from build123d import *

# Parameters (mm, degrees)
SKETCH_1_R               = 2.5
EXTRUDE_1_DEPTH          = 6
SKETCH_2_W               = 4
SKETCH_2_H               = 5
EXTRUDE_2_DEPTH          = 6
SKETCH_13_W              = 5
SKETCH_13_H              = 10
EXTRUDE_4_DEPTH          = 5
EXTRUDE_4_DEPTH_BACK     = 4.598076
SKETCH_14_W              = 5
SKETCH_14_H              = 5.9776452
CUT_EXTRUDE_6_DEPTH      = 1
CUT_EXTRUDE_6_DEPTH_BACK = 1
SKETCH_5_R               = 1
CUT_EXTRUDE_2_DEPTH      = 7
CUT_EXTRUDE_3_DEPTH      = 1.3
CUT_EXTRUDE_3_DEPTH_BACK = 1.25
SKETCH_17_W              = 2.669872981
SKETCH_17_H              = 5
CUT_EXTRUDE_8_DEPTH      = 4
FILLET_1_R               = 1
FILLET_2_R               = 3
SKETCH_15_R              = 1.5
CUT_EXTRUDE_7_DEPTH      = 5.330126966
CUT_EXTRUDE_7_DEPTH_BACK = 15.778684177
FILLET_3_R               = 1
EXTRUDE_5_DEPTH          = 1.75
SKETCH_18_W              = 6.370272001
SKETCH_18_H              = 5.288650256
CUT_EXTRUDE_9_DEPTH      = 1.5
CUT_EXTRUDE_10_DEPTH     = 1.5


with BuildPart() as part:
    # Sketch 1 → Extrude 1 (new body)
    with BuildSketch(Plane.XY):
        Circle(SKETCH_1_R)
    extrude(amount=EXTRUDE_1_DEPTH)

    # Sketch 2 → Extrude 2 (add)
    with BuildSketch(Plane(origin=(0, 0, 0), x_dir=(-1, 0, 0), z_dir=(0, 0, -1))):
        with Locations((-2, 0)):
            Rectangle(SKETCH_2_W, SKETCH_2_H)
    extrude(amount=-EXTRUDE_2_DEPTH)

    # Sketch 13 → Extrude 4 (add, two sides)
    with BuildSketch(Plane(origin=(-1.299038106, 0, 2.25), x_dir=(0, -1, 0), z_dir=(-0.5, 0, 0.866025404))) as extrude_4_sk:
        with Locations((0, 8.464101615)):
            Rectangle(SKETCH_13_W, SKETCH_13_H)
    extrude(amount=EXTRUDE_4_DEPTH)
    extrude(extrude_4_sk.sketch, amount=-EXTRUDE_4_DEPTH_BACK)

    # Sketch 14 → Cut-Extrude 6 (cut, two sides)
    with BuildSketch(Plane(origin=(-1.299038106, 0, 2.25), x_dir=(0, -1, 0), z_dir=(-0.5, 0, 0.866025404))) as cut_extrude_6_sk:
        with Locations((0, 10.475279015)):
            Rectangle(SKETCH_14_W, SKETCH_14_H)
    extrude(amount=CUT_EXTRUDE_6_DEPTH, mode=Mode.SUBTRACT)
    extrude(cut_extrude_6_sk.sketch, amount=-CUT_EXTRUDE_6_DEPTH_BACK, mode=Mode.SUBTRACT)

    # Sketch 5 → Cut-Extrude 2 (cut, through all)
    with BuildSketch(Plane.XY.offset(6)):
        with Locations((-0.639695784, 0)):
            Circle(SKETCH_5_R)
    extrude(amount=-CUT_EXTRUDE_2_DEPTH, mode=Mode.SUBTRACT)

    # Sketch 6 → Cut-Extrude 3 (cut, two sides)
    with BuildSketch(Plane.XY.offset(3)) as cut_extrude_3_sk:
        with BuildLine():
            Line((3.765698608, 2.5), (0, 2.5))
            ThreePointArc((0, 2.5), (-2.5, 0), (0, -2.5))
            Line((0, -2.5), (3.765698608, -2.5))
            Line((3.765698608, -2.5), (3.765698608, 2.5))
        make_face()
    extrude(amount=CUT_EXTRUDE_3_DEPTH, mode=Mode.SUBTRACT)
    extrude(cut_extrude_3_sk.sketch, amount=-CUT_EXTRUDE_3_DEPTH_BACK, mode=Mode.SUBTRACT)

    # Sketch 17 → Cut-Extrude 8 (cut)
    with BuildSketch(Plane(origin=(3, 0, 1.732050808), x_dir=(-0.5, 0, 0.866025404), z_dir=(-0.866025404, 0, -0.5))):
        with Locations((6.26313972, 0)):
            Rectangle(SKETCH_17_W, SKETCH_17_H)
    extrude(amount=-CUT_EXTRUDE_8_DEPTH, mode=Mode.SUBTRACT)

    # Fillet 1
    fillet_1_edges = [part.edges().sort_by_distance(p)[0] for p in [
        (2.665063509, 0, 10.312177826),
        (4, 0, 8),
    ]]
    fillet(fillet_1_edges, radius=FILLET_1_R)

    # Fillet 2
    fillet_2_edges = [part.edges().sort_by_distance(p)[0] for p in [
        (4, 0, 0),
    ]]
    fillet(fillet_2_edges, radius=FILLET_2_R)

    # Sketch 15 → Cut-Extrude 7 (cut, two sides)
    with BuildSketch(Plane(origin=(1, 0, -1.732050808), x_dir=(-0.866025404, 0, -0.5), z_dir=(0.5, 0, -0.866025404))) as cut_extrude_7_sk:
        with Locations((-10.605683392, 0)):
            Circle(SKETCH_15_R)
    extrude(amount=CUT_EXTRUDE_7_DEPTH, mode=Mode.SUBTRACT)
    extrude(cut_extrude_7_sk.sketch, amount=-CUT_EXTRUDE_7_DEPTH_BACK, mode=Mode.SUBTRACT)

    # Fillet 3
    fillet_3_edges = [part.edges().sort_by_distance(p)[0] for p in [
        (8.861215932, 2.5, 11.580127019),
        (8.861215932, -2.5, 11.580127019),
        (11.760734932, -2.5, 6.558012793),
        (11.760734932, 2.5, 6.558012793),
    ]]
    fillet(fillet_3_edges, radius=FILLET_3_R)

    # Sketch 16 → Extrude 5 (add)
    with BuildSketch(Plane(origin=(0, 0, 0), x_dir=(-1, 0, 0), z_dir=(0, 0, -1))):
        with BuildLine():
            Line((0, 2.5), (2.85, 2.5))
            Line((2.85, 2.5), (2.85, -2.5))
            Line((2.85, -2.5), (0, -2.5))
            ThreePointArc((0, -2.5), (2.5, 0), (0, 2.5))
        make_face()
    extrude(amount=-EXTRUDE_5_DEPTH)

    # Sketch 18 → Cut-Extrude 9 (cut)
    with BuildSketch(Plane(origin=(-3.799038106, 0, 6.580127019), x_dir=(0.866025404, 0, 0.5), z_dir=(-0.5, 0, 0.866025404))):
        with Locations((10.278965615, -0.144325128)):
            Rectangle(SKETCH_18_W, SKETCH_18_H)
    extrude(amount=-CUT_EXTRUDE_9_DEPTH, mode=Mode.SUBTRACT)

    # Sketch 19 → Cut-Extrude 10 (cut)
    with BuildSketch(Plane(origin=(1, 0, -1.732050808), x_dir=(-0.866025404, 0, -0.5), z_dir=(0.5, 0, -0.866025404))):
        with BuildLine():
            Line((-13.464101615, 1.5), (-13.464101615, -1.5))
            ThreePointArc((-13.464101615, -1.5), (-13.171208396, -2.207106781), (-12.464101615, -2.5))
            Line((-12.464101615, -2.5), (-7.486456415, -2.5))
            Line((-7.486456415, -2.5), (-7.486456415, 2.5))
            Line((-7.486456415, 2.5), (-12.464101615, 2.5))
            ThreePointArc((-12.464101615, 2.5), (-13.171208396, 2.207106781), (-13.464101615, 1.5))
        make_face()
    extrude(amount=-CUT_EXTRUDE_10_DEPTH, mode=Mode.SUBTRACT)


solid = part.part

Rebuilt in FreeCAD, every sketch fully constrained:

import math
import FreeCAD as App
import Part
import Sketcher

V = App.Vector
Q = App.Units.Quantity


def edges_at(feature, points):
    """Names of the edges that pass closest to the given points."""
    edges = feature.Shape.Edges
    near = lambda p: min(range(len(edges)), key=lambda i: edges[i].distToShape(Part.Vertex(*p))[0])
    return sorted({f"Edge{near(p) + 1}" for p in points})

doc = App.newDocument("Part")
body = doc.addObject("PartDesign::Body", "Body")

# Sketch on XY plane
sketch1 = body.newObject("Sketcher::SketchObject", "Sketch")
sketch1.AttachmentSupport = (doc.getObject("XY_Plane"), [""])
sketch1.MapMode = "FlatFace"
sketch1.addGeometry(Part.Circle(V(0, 0, 0), V(0, 0, 1), 2.5), False)
sketch1.addConstraint(Sketcher.Constraint("Coincident", 0, 3, -1, 1))
sketch1.addConstraint(Sketcher.Constraint("Diameter", 0, Q("5 mm")))
pad1 = body.newObject("PartDesign::Pad", "Pad")
pad1.Profile = sketch1
pad1.Length = 6

# Sketch on XY plane
sketch2 = body.newObject("Sketcher::SketchObject", "Sketch001")
sketch2.AttachmentSupport = (doc.getObject("XY_Plane"), [""])
sketch2.MapMode = "FlatFace"
sketch2.addGeometry(Part.LineSegment(V(4, 2.5, 0), V(4, -2.5, 0)), False)
sketch2.addGeometry(Part.LineSegment(V(4, -2.5, 0), V(0, -2.5, 0)), False)
sketch2.addGeometry(Part.LineSegment(V(0, -2.5, 0), V(0, 2.5, 0)), False)
sketch2.addGeometry(Part.LineSegment(V(0, 2.5, 0), V(4, 2.5, 0)), False)
sketch2.addConstraint(Sketcher.Constraint("Coincident", 0, 2, 1, 1))
sketch2.addConstraint(Sketcher.Constraint("Coincident", 1, 2, 2, 1))
sketch2.addConstraint(Sketcher.Constraint("Coincident", 2, 2, 3, 1))
sketch2.addConstraint(Sketcher.Constraint("Coincident", 3, 2, 0, 1))
sketch2.addConstraint(Sketcher.Constraint("Vertical", 0))
sketch2.addConstraint(Sketcher.Constraint("Horizontal", 1))
sketch2.addConstraint(Sketcher.Constraint("Vertical", 2))
sketch2.addConstraint(Sketcher.Constraint("Horizontal", 3))
sketch2.addConstraint(Sketcher.Constraint("Symmetric", 1, 2, 2, 2, -1, 1))
sketch2.addConstraint(Sketcher.Constraint("DistanceX", 1, 2, 1, 1, Q("4 mm")))
sketch2.addConstraint(Sketcher.Constraint("DistanceY", 0, 2, 0, 1, Q("5 mm")))
pad2 = body.newObject("PartDesign::Pad", "Pad001")
pad2.Profile = sketch2
pad2.Length = 6

# Sketch on an angled plane
sketch3 = body.newObject("Sketcher::SketchObject", "Sketch002")
sketch3.Placement = App.Placement(V(-1.299038, 0, 2.25), App.Rotation(V(0, -1, 0), V(0.866025404, 0, 0.5), V(-0.5, 0, 0.866025404), "ZXY"))
sketch3.addGeometry(Part.LineSegment(V(-2, 13, 0), V(-2, 3, 0)), False)
sketch3.addGeometry(Part.LineSegment(V(-2, 3, 0), V(2, 3, 0)), False)
sketch3.addGeometry(Part.LineSegment(V(2, 3, 0), V(2, 13, 0)), False)
sketch3.addGeometry(Part.LineSegment(V(2, 13, 0), V(-2, 13, 0)), False)
sketch3.addConstraint(Sketcher.Constraint("Coincident", 0, 2, 1, 1))
sketch3.addConstraint(Sketcher.Constraint("Coincident", 1, 2, 2, 1))
sketch3.addConstraint(Sketcher.Constraint("Coincident", 2, 2, 3, 1))
sketch3.addConstraint(Sketcher.Constraint("Coincident", 3, 2, 0, 1))
sketch3.addConstraint(Sketcher.Constraint("Vertical", 0))
sketch3.addConstraint(Sketcher.Constraint("Horizontal", 1))
sketch3.addConstraint(Sketcher.Constraint("Vertical", 2))
sketch3.addConstraint(Sketcher.Constraint("Horizontal", 3))
sketch3.addConstraint(Sketcher.Constraint("DistanceX", 1, 1, 1, 2, Q("5 mm")))
sketch3.addConstraint(Sketcher.Constraint("DistanceY", 0, 2, 0, 1, Q("10 mm")))
sketch3.addConstraint(Sketcher.Constraint("DistanceX", 0, 2, -1, 1, Q("2.5 mm")))
sketch3.addConstraint(Sketcher.Constraint("DistanceY", -1, 1, 0, 2, Q("3.464102 mm")))
pad3 = body.newObject("PartDesign::Pad", "Pad002")
pad3.Profile = sketch3
pad3.Type = "TwoLengths"
pad3.Length = 5
pad3.Length2 = 4.598076

# Sketch on an angled plane
sketch4 = body.newObject("Sketcher::SketchObject", "Sketch003")
sketch4.Placement = App.Placement(V(-1.299038, 0, 2.25), App.Rotation(V(0, -1, 0), V(0.866025404, 0, 0.5), V(-0.5, 0, 0.866025404), "ZXY"))
sketch4.addGeometry(Part.LineSegment(V(-2, 13, 0), V(-2, 7, 0)), False)
sketch4.addGeometry(Part.LineSegment(V(-2, 7, 0), V(2, 7, 0)), False)
sketch4.addGeometry(Part.LineSegment(V(2, 7, 0), V(2, 13, 0)), False)
sketch4.addGeometry(Part.LineSegment(V(2, 13, 0), V(-2, 13, 0)), False)
sketch4.addConstraint(Sketcher.Constraint("Coincident", 0, 2, 1, 1))
sketch4.addConstraint(Sketcher.Constraint("Coincident", 1, 2, 2, 1))
sketch4.addConstraint(Sketcher.Constraint("Coincident", 2, 2, 3, 1))
sketch4.addConstraint(Sketcher.Constraint("Coincident", 3, 2, 0, 1))
sketch4.addConstraint(Sketcher.Constraint("Vertical", 0))
sketch4.addConstraint(Sketcher.Constraint("Horizontal", 1))
sketch4.addConstraint(Sketcher.Constraint("Vertical", 2))
sketch4.addConstraint(Sketcher.Constraint("Horizontal", 3))
sketch4.addConstraint(Sketcher.Constraint("DistanceX", 1, 1, 1, 2, Q("5 mm")))
sketch4.addConstraint(Sketcher.Constraint("DistanceX", 0, 2, -1, 1, Q("2.5 mm")))
sketch4.addConstraint(Sketcher.Constraint("DistanceY", -1, 1, 2, 2, Q("13.464102 mm")))
sketch4.addConstraint(Sketcher.Constraint("DistanceY", 0, 2, 0, 1, Q("5.977645 mm")))
pocket1 = body.newObject("PartDesign::Pocket", "Pocket")
pocket1.Profile = sketch4
pocket1.Type = "TwoLengths"
pocket1.Length = 1
pocket1.Length2 = 1
pocket1.Reversed = True

# Sketch on XY plane
sketch5 = body.newObject("Sketcher::SketchObject", "Sketch004")
sketch5.AttachmentSupport = (doc.getObject("XY_Plane"), [""])
sketch5.MapMode = "FlatFace"
sketch5.AttachmentOffset = App.Placement(V(0, 0, 6), App.Rotation())
sketch5.addGeometry(Part.Circle(V(-0.6, 0, 0), V(0, 0, 1), 1), False)
sketch5.addConstraint(Sketcher.Constraint("PointOnObject", 0, 3, -1))
sketch5.addConstraint(Sketcher.Constraint("Diameter", 0, Q("2 mm")))
sketch5.addConstraint(Sketcher.Constraint("DistanceX", 0, 3, -1, 1, Q("0.639696 mm")))
pocket2 = body.newObject("PartDesign::Pocket", "Pocket001")
pocket2.Profile = sketch5
pocket2.Type = "ThroughAll"

# Sketch on XY plane
sketch6 = body.newObject("Sketcher::SketchObject", "Sketch005")
sketch6.AttachmentSupport = (doc.getObject("XY_Plane"), [""])
sketch6.MapMode = "FlatFace"
sketch6.AttachmentOffset = App.Placement(V(0, 0, 3), App.Rotation())
sketch6.addGeometry(Part.LineSegment(V(3.8, 2.5, 0), V(0, 2.5, 0)), False)
sketch6.addGeometry(Part.ArcOfCircle(Part.Circle(V(0, 0, 0), V(0, 0, 1), 2.5), math.radians(90), math.radians(270)), False)
sketch6.addGeometry(Part.LineSegment(V(0, -2.5, 0), V(3.8, -2.5, 0)), False)
sketch6.addGeometry(Part.LineSegment(V(3.8, -2.5, 0), V(3.8, 2.5, 0)), False)
sketch6.addConstraint(Sketcher.Constraint("Tangent", 0, 2, 1, 1))
sketch6.addConstraint(Sketcher.Constraint("Tangent", 1, 2, 2, 1))
sketch6.addConstraint(Sketcher.Constraint("Coincident", 2, 2, 3, 1))
sketch6.addConstraint(Sketcher.Constraint("Coincident", 3, 2, 0, 1))
sketch6.addConstraint(Sketcher.Constraint("Horizontal", 0))
sketch6.addConstraint(Sketcher.Constraint("Horizontal", 2))
sketch6.addConstraint(Sketcher.Constraint("Vertical", 3))
sketch6.addConstraint(Sketcher.Constraint("Coincident", 1, 3, -1, 1))
sketch6.addConstraint(Sketcher.Constraint("Radius", 1, Q("2.5 mm")))
sketch6.addConstraint(Sketcher.Constraint("DistanceX", 0, 2, 0, 1, Q("3.765699 mm")))
pocket3 = body.newObject("PartDesign::Pocket", "Pocket002")
pocket3.Profile = sketch6
pocket3.Type = "TwoLengths"
pocket3.Length = 1.3
pocket3.Length2 = 1.25
pocket3.Reversed = True

# Sketch on an angled plane
sketch7 = body.newObject("Sketcher::SketchObject", "Sketch006")
sketch7.Placement = App.Placement(V(3, 0, 1.732051), App.Rotation(V(-0.5, 0, 0.866025404), V(0, 1, 0), V(-0.866025404, 0, -0.5), "ZXY"))
sketch7.addGeometry(Part.LineSegment(V(4.9, 2.5, 0), V(4.9, -2.5, 0)), False)
sketch7.addGeometry(Part.LineSegment(V(4.9, -2.5, 0), V(7.6, -2.5, 0)), False)
sketch7.addGeometry(Part.LineSegment(V(7.6, -2.5, 0), V(7.6, 2.5, 0)), False)
sketch7.addGeometry(Part.LineSegment(V(7.6, 2.5, 0), V(4.9, 2.5, 0)), False)
sketch7.addConstraint(Sketcher.Constraint("Coincident", 0, 2, 1, 1))
sketch7.addConstraint(Sketcher.Constraint("Coincident", 1, 2, 2, 1))
sketch7.addConstraint(Sketcher.Constraint("Coincident", 2, 2, 3, 1))
sketch7.addConstraint(Sketcher.Constraint("Coincident", 3, 2, 0, 1))
sketch7.addConstraint(Sketcher.Constraint("Vertical", 0))
sketch7.addConstraint(Sketcher.Constraint("Horizontal", 1))
sketch7.addConstraint(Sketcher.Constraint("Vertical", 2))
sketch7.addConstraint(Sketcher.Constraint("Horizontal", 3))
sketch7.addConstraint(Sketcher.Constraint("DistanceY", 0, 2, 0, 1, Q("5 mm")))
sketch7.addConstraint(Sketcher.Constraint("DistanceY", 0, 2, -1, 1, Q("2.5 mm")))
sketch7.addConstraint(Sketcher.Constraint("DistanceX", 1, 1, 1, 2, Q("2.669873 mm")))
sketch7.addConstraint(Sketcher.Constraint("DistanceX", -1, 1, 0, 2, Q("4.928203 mm")))
pocket4 = body.newObject("PartDesign::Pocket", "Pocket003")
pocket4.Profile = sketch7
pocket4.Length = 4
doc.recompute()

fillet = body.newObject("PartDesign::Fillet", "Fillet")
fillet.Base = (pocket4, edges_at(pocket4, [(2.665, 0, 10.312), (4, 0, 8)]))
fillet.Radius = 1
doc.recompute()

fillet2 = body.newObject("PartDesign::Fillet", "Fillet001")
fillet2.Base = (fillet, edges_at(fillet, [(4, 0, 0)]))
fillet2.Radius = 3

# Sketch on an angled plane
sketch8 = body.newObject("Sketcher::SketchObject", "Sketch007")
sketch8.Placement = App.Placement(V(1, 0, -1.732051), App.Rotation(V(-0.866025404, 0, -0.5), V(0, 1, 0), V(0.5, 0, -0.866025404), "ZXY"))
sketch8.addGeometry(Part.Circle(V(-10.6, 0, 0), V(0, 0, 1), 1.5), False)
sketch8.addConstraint(Sketcher.Constraint("PointOnObject", 0, 3, -1))
sketch8.addConstraint(Sketcher.Constraint("Diameter", 0, Q("3 mm")))
sketch8.addConstraint(Sketcher.Constraint("DistanceX", 0, 3, -1, 1, Q("10.605683 mm")))
pocket5 = body.newObject("PartDesign::Pocket", "Pocket004")
pocket5.Profile = sketch8
pocket5.Type = "ThroughAll"
pocket5.Midplane = True
doc.recompute()

fillet3 = body.newObject("PartDesign::Fillet", "Fillet002")
fillet3.Base = (pocket5, edges_at(pocket5, [
    (8.861, 2.5, 11.58),
    (8.861, -2.5, 11.58),
    (11.761, -2.5, 6.558),
    (11.761, 2.5, 6.558),
]))
fillet3.Radius = 1

# Sketch on XY plane
sketch9 = body.newObject("Sketcher::SketchObject", "Sketch008")
sketch9.AttachmentSupport = (doc.getObject("XY_Plane"), [""])
sketch9.MapMode = "FlatFace"
sketch9.addGeometry(Part.LineSegment(V(-2.9, 2.5, 0), V(0, 2.5, 0)), False)
sketch9.addGeometry(Part.ArcOfCircle(Part.Circle(V(0, 0, 0), V(0, 0, 1), 2.5), math.radians(90), math.radians(270)), False)
sketch9.addGeometry(Part.LineSegment(V(0, -2.5, 0), V(-2.9, -2.5, 0)), False)
sketch9.addGeometry(Part.LineSegment(V(-2.9, -2.5, 0), V(-2.9, 2.5, 0)), False)
sketch9.addConstraint(Sketcher.Constraint("Tangent", 0, 2, 1, 1))
sketch9.addConstraint(Sketcher.Constraint("Tangent", 1, 2, 2, 1))
sketch9.addConstraint(Sketcher.Constraint("Coincident", 2, 2, 3, 1))
sketch9.addConstraint(Sketcher.Constraint("Coincident", 3, 2, 0, 1))
sketch9.addConstraint(Sketcher.Constraint("Horizontal", 0))
sketch9.addConstraint(Sketcher.Constraint("Horizontal", 2))
sketch9.addConstraint(Sketcher.Constraint("Vertical", 3))
sketch9.addConstraint(Sketcher.Constraint("Coincident", 1, 3, -1, 1))
sketch9.addConstraint(Sketcher.Constraint("Radius", 1, Q("2.5 mm")))
sketch9.addConstraint(Sketcher.Constraint("DistanceX", 0, 1, 0, 2, Q("2.85 mm")))
pad4 = body.newObject("PartDesign::Pad", "Pad003")
pad4.Profile = sketch9
pad4.Length = 1.75

# Sketch on an angled plane
sketch10 = body.newObject("Sketcher::SketchObject", "Sketch009")
sketch10.Placement = App.Placement(V(-3.799038, 0, 6.580127), App.Rotation(V(0.866025404, 0, 0.5), V(0, 1, 0), V(-0.5, 0, 0.866025404), "ZXY"))
sketch10.addGeometry(Part.LineSegment(V(7, 3, 0), V(7, -3, 0)), False)
sketch10.addGeometry(Part.LineSegment(V(7, -3, 0), V(13, -3, 0)), False)
sketch10.addGeometry(Part.LineSegment(V(13, -3, 0), V(13, 3, 0)), False)
sketch10.addGeometry(Part.LineSegment(V(13, 3, 0), V(7, 3, 0)), False)
sketch10.addConstraint(Sketcher.Constraint("Coincident", 0, 2, 1, 1))
sketch10.addConstraint(Sketcher.Constraint("Coincident", 1, 2, 2, 1))
sketch10.addConstraint(Sketcher.Constraint("Coincident", 2, 2, 3, 1))
sketch10.addConstraint(Sketcher.Constraint("Coincident", 3, 2, 0, 1))
sketch10.addConstraint(Sketcher.Constraint("Vertical", 0))
sketch10.addConstraint(Sketcher.Constraint("Horizontal", 1))
sketch10.addConstraint(Sketcher.Constraint("Vertical", 2))
sketch10.addConstraint(Sketcher.Constraint("Horizontal", 3))
sketch10.addConstraint(Sketcher.Constraint("DistanceY", -1, 1, 2, 2, Q("2.5 mm")))
sketch10.addConstraint(Sketcher.Constraint("DistanceY", 0, 2, 0, 1, Q("5.28865 mm")))
sketch10.addConstraint(Sketcher.Constraint("DistanceX", -1, 1, 1, 2, Q("13.464102 mm")))
sketch10.addConstraint(Sketcher.Constraint("DistanceX", 1, 1, 1, 2, Q("6.370272 mm")))
pocket6 = body.newObject("PartDesign::Pocket", "Pocket005")
pocket6.Profile = sketch10
pocket6.Length = 1.5

# Sketch on an angled plane
sketch11 = body.newObject("Sketcher::SketchObject", "Sketch010")
sketch11.Placement = App.Placement(V(1, 0, -1.732051), App.Rotation(V(-0.866025404, 0, -0.5), V(0, 1, 0), V(0.5, 0, -0.866025404), "ZXY"))
sketch11.addGeometry(Part.LineSegment(V(-13.5, 1.5, 0), V(-13.5, -1.5, 0)), False)
sketch11.addGeometry(Part.ArcOfCircle(Part.Circle(V(-12.5, -1.5, 0), V(0, 0, 1), 1), math.radians(-180), math.radians(-90)), False)
sketch11.addGeometry(Part.LineSegment(V(-12.5, -2.5, 0), V(-7.5, -2.5, 0)), False)
sketch11.addGeometry(Part.LineSegment(V(-7.5, -2.5, 0), V(-7.5, 2.5, 0)), False)
sketch11.addGeometry(Part.LineSegment(V(-7.5, 2.5, 0), V(-12.5, 2.5, 0)), False)
sketch11.addGeometry(Part.ArcOfCircle(Part.Circle(V(-12.5, 1.5, 0), V(0, 0, 1), 1), math.radians(90), math.radians(180)), False)
sketch11.addConstraint(Sketcher.Constraint("Tangent", 0, 2, 1, 1))
sketch11.addConstraint(Sketcher.Constraint("Tangent", 1, 2, 2, 1))
sketch11.addConstraint(Sketcher.Constraint("Coincident", 2, 2, 3, 1))
sketch11.addConstraint(Sketcher.Constraint("Coincident", 3, 2, 4, 1))
sketch11.addConstraint(Sketcher.Constraint("Tangent", 4, 2, 5, 1))
sketch11.addConstraint(Sketcher.Constraint("Tangent", 5, 2, 0, 1))
sketch11.addConstraint(Sketcher.Constraint("Vertical", 0))
sketch11.addConstraint(Sketcher.Constraint("Horizontal", 2))
sketch11.addConstraint(Sketcher.Constraint("Vertical", 3))
sketch11.addConstraint(Sketcher.Constraint("Horizontal", 4))
sketch11.addConstraint(Sketcher.Constraint("Equal", 1, 5))
sketch11.addConstraint(Sketcher.Constraint("Radius", 1, Q("1 mm")))
sketch11.addConstraint(Sketcher.Constraint("DistanceY", 0, 2, 0, 1, Q("3 mm")))
sketch11.addConstraint(Sketcher.Constraint("DistanceY", 1, 3, -1, 1, Q("1.5 mm")))
sketch11.addConstraint(Sketcher.Constraint("DistanceX", 1, 3, -1, 1, Q("12.464102 mm")))
sketch11.addConstraint(Sketcher.Constraint("DistanceX", 2, 1, 2, 2, Q("4.977645 mm")))
pocket7 = body.newObject("PartDesign::Pocket", "Pocket006")
pocket7.Profile = sketch11
pocket7.Length = 1.5

doc.recompute()
